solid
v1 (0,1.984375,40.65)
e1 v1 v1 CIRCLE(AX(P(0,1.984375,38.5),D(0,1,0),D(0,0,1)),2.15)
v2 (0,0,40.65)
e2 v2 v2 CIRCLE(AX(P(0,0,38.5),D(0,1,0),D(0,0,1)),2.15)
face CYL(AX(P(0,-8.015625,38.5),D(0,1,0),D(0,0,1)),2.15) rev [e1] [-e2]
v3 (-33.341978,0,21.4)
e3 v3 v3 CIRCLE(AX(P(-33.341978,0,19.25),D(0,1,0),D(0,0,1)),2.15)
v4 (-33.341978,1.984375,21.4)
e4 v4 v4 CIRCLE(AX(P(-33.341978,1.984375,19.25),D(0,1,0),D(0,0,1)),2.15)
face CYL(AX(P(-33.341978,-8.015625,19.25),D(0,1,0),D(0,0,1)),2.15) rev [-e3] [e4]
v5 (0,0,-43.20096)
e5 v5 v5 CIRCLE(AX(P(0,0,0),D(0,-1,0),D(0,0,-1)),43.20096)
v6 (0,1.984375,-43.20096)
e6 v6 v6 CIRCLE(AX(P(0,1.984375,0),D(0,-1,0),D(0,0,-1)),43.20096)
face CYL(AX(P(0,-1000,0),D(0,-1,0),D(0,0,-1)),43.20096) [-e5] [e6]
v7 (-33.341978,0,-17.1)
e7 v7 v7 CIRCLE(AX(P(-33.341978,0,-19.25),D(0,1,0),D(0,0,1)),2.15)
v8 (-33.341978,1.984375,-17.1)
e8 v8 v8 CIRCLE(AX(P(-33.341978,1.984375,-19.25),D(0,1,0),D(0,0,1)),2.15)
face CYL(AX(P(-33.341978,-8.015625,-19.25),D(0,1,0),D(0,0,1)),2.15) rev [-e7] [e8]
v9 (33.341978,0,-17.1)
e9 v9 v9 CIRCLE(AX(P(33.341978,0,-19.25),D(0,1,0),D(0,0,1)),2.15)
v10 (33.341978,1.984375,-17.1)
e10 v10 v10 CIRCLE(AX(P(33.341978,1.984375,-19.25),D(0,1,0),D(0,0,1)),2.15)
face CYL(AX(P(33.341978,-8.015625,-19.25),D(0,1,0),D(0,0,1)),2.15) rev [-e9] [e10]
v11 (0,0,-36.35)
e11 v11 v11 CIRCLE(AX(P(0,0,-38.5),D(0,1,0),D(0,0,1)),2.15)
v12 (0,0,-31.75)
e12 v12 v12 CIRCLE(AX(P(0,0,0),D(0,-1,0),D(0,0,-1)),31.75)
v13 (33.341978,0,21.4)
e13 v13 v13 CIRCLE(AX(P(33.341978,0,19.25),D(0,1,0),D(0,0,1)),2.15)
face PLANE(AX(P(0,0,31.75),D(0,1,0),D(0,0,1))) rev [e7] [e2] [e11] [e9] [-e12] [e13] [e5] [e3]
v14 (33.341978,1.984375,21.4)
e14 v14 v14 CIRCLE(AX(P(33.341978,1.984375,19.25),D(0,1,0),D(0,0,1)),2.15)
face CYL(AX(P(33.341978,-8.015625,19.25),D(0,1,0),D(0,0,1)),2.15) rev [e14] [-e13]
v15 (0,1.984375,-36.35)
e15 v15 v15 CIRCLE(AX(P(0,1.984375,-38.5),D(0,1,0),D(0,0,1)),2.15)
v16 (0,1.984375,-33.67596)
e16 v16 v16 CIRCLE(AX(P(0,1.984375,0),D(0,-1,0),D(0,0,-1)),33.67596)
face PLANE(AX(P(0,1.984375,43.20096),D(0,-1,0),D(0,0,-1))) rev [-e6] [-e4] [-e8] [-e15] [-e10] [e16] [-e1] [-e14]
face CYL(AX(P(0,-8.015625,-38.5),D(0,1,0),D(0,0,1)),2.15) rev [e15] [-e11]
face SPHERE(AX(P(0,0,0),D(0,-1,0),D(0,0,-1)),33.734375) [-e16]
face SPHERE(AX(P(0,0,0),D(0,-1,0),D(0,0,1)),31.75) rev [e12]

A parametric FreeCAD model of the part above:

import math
import FreeCAD as App
import Part
import Sketcher
Q = App.Units.Quantity

doc = App.newDocument("Part")
body = doc.addObject("PartDesign::Body", "Body")

# Sketch on YZ plane
sketch1 = body.newObject("Sketcher::SketchObject", "Sketch")
sketch1.AttachmentSupport = (doc.getObject("YZ_Plane"), [""])
sketch1.MapMode = "FlatFace"
sketch1.addGeometry([
    Part.LineSegment(App.Vector(0, 43.2, 0), App.Vector(0, 31.8, 0)),  # 0
    Part.ArcOfCircle(Part.Circle(App.Vector(0, 0, 0), App.Vector(0, 0, 1), 31.7), math.radians(0), math.radians(90)),  # 1
    Part.LineSegment(App.Vector(31.8, 0, 0), App.Vector(33.7, 0, 0)),  # 2
    Part.ArcOfCircle(Part.Circle(App.Vector(0, 0, 0), App.Vector(0, 0, 1), 33.7), math.radians(0), math.radians(87)),  # 3
    Part.LineSegment(App.Vector(2, 33.7, 0), App.Vector(2, 43.2, 0)),  # 4
    Part.LineSegment(App.Vector(2, 43.2, 0), App.Vector(0, 43.2, 0)),  # 5
], False)
sketch1.addConstraint([
    Sketcher.Constraint("Coincident", 0, 2, 1, 2),
    Sketcher.Constraint("Coincident", 1, 1, 2, 1),
    Sketcher.Constraint("Coincident", 2, 2, 3, 1),
    Sketcher.Constraint("Coincident", 3, 2, 4, 1),
    Sketcher.Constraint("Coincident", 4, 2, 5, 1),
    Sketcher.Constraint("Coincident", 5, 2, 0, 1),
    Sketcher.Constraint("Vertical", 0),
    Sketcher.Constraint("Horizontal", 2),
    Sketcher.Constraint("Vertical", 4),
    Sketcher.Constraint("Horizontal", 5),
    Sketcher.Constraint("Coincident", 1, 3, -1, 1),
    Sketcher.Constraint("Coincident", 3, 3, -1, 1),
    Sketcher.Constraint("PointOnObject", 0, 2, -2),
    Sketcher.Constraint("PointOnObject", 1, 1, -1),
    Sketcher.Constraint("Equal", 2, 5),
    Sketcher.Constraint("Radius", 1, Q("1.25 in")),
    Sketcher.Constraint("Radius", 3, Q("1.328125 in")),
    Sketcher.Constraint("DistanceY", 4, 1, 4, 2, Q("0.375 in")),
])
revolution = body.newObject("PartDesign::Revolution", "Revolution")
revolution.Profile = sketch1
revolution.ReferenceAxis = (sketch1, ["H_Axis"])
revolution.Angle = 360

# Sketch on XZ plane
sketch2 = body.newObject("Sketcher::SketchObject", "Sketch001")
sketch2.AttachmentSupport = (doc.getObject("XZ_Plane"), [""])
sketch2.MapMode = "FlatFace"
sketch2.AttachmentOffset = App.Placement(App.Vector(0, 0, -0.078125 * 25.4), App.Rotation())
sketch2.addGeometry([
    Part.Circle(App.Vector(0, 38.5, 0), App.Vector(0, 0, 1), 2.1),  # 0
    Part.Circle(App.Vector(-33.3, 19.2, 0), App.Vector(0, 0, 1), 2.1),  # 1
    Part.Circle(App.Vector(-33.3, -19.2, 0), App.Vector(0, 0, 1), 2.1),  # 2
    Part.Circle(App.Vector(0, -38.5, 0), App.Vector(0, 0, 1), 2.1),  # 3
    Part.Circle(App.Vector(33.3, -19.2, 0), App.Vector(0, 0, 1), 2.1),  # 4
    Part.Circle(App.Vector(33.3, 19.2, 0), App.Vector(0, 0, 1), 2.1),  # 5
], False)
sketch2.addConstraint([
    Sketcher.Constraint("Equal", 0, 1),
    Sketcher.Constraint("Equal", 1, 2),
    Sketcher.Constraint("Equal", 2, 3),
    Sketcher.Constraint("Equal", 3, 4),
    Sketcher.Constraint("Equal", 4, 5),
    Sketcher.Constraint("Symmetric", 0, 3, 3, 3, -1, 1),
    Sketcher.Constraint("Symmetric", 1, 3, 4, 3, -1, 1),
    Sketcher.Constraint("Symmetric", 2, 3, 5, 3, -1, 1),
    Sketcher.Constraint("Symmetric", 2, 3, 4, 3, -2),
    Sketcher.Constraint("PointOnObject", 0, 3, -2),
    Sketcher.Constraint("Diameter", 0, 4.3),
    Sketcher.Constraint("DistanceY", -1, 1, 0, 3, 38.5),
    Sketcher.Constraint("DistanceY", -1, 1, 1, 3, 19.25),
    Sketcher.Constraint("DistanceX", 1, 3, -1, 1, 33.341978),
])
pocket1 = body.newObject("PartDesign::Pocket", "Pocket")
pocket1.Profile = sketch2
pocket1.Length = 10
pocket1.Reversed = True

doc.recompute()
